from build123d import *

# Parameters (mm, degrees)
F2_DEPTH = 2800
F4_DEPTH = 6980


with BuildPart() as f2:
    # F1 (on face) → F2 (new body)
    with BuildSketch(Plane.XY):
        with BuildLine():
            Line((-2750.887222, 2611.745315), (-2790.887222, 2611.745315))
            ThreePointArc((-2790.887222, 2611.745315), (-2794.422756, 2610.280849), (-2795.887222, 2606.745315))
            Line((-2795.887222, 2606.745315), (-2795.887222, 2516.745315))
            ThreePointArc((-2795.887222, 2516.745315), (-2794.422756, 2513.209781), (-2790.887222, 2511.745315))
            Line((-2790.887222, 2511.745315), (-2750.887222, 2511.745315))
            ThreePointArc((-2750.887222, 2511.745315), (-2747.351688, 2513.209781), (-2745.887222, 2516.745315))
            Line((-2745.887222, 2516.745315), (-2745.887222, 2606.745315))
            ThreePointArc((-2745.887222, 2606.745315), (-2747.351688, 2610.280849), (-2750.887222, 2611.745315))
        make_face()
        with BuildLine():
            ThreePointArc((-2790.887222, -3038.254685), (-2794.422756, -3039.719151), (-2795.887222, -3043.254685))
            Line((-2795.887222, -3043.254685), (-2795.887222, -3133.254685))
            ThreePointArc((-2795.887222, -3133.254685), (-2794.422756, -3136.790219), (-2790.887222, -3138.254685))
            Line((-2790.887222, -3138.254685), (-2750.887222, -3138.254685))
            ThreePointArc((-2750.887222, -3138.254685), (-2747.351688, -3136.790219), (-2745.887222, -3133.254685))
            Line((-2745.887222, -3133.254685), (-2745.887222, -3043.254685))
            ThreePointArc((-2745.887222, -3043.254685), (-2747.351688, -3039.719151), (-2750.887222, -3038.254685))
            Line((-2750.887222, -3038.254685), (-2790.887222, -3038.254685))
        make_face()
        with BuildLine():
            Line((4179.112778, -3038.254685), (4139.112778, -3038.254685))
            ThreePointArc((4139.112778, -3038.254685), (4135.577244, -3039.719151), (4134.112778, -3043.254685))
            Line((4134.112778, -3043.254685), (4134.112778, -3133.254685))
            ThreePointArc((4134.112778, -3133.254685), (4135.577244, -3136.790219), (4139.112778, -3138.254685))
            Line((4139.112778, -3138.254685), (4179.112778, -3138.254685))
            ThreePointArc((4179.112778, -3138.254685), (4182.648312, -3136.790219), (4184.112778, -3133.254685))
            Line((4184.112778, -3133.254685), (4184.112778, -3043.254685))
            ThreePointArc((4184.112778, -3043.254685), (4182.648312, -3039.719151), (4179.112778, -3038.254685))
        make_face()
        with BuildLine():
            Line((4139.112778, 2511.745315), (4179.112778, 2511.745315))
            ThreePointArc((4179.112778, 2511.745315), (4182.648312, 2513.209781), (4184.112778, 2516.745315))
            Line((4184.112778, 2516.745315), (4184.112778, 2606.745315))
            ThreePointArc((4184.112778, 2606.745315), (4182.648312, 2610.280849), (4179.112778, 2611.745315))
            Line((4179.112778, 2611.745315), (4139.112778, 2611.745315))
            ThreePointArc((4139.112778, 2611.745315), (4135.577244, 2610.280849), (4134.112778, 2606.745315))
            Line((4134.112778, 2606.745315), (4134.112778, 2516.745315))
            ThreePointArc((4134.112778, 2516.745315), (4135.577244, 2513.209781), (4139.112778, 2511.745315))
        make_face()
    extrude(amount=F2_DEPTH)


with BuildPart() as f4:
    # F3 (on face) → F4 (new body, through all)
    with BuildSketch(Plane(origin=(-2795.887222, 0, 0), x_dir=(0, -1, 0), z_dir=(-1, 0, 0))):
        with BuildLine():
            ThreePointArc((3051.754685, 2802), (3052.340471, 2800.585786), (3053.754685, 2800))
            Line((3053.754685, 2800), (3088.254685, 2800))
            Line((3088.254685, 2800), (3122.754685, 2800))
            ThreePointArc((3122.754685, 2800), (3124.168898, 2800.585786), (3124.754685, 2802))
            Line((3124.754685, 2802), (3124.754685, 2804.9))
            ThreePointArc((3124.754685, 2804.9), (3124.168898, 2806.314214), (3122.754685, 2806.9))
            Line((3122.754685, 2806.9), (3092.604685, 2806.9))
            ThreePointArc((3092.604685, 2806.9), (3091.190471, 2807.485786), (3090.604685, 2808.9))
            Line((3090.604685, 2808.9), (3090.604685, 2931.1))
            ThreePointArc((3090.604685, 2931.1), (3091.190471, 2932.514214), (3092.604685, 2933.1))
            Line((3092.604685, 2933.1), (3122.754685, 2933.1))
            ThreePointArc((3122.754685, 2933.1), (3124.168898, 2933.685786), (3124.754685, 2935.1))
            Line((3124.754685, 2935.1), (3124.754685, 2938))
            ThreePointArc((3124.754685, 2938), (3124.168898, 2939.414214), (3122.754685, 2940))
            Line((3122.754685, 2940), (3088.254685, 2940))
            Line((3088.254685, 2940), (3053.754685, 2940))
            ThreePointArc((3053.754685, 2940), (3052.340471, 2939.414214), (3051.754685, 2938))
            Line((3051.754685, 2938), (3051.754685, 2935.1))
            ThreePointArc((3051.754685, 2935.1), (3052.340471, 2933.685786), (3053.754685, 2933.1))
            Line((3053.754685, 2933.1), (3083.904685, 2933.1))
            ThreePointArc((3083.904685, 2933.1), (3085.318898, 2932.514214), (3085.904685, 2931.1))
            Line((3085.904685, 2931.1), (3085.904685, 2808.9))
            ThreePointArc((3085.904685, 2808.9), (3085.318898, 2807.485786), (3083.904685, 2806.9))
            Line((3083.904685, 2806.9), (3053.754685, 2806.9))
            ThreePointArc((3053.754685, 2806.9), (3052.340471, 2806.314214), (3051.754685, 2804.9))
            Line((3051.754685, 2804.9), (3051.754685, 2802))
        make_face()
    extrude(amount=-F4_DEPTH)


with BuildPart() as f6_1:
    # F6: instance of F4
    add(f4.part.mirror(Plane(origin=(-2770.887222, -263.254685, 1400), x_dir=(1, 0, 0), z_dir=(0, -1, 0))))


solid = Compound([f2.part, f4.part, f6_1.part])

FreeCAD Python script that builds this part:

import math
import FreeCAD as App
import Part
import Sketcher
Q = App.Units.Quantity

doc = App.newDocument("Part")
body = doc.addObject("PartDesign::Body", "Body")
body.AllowCompound = True

# Sketch on XY plane
sketch1 = doc.addObject("Sketcher::SketchObject", "Sketch")
body.addObject(sketch1)
sketch1.AttachmentSupport = (doc.XY_Plane, [""])
sketch1.MapMode = "FlatFace"
sketch1.addGeometry(Part.LineSegment(App.Vector(-2750.9, 2611.7, 0), App.Vector(-2790.9, 2611.7, 0)), False)
sketch1.addGeometry(Part.ArcOfCircle(Part.Circle(App.Vector(-2790.9, 2606.7, 0), App.Vector(0, 0, 1), 5), math.radians(90), math.radians(180)), False)
sketch1.addGeometry(Part.LineSegment(App.Vector(-2795.9, 2606.7, 0), App.Vector(-2795.9, 2516.7, 0)), False)
sketch1.addGeometry(Part.ArcOfCircle(Part.Circle(App.Vector(-2790.9, 2516.7, 0), App.Vector(0, 0, 1), 5), math.radians(180), math.radians(270)), False)
sketch1.addGeometry(Part.LineSegment(App.Vector(-2790.9, 2511.7, 0), App.Vector(-2750.9, 2511.7, 0)), False)
sketch1.addGeometry(Part.ArcOfCircle(Part.Circle(App.Vector(-2750.9, 2516.7, 0), App.Vector(0, 0, 1), 5), math.radians(-90), math.radians(0)), False)
sketch1.addGeometry(Part.LineSegment(App.Vector(-2745.9, 2516.7, 0), App.Vector(-2745.9, 2606.7, 0)), False)
sketch1.addGeometry(Part.ArcOfCircle(Part.Circle(App.Vector(-2750.9, 2606.7, 0), App.Vector(0, 0, 1), 5), math.radians(0), math.radians(90)), False)
sketch1.addGeometry(Part.ArcOfCircle(Part.Circle(App.Vector(-2790.9, -3043.3, 0), App.Vector(0, 0, 1), 5), math.radians(90), math.radians(180)), False)
sketch1.addGeometry(Part.LineSegment(App.Vector(-2795.9, -3043.3, 0), App.Vector(-2795.9, -3133.3, 0)), False)
sketch1.addGeometry(Part.ArcOfCircle(Part.Circle(App.Vector(-2790.9, -3133.3, 0), App.Vector(0, 0, 1), 5), math.radians(180), math.radians(270)), False)
sketch1.addGeometry(Part.LineSegment(App.Vector(-2790.9, -3138.3, 0), App.Vector(-2750.9, -3138.3, 0)), False)
sketch1.addGeometry(Part.ArcOfCircle(Part.Circle(App.Vector(-2750.9, -3133.3, 0), App.Vector(0, 0, 1), 5), math.radians(-90), math.radians(0)), False)
sketch1.addGeometry(Part.LineSegment(App.Vector(-2745.9, -3133.3, 0), App.Vector(-2745.9, -3043.3, 0)), False)
sketch1.addGeometry(Part.ArcOfCircle(Part.Circle(App.Vector(-2750.9, -3043.3, 0), App.Vector(0, 0, 1), 5), math.radians(0), math.radians(90)), False)
sketch1.addGeometry(Part.LineSegment(App.Vector(-2750.9, -3038.3, 0), App.Vector(-2790.9, -3038.3, 0)), False)
sketch1.addGeometry(Part.LineSegment(App.Vector(4179.1, -3038.3, 0), App.Vector(4139.1, -3038.3, 0)), False)
sketch1.addGeometry(Part.ArcOfCircle(Part.Circle(App.Vector(4139.1, -3043.3, 0), App.Vector(0, 0, 1), 5), math.radians(90), math.radians(180)), False)
sketch1.addGeometry(Part.LineSegment(App.Vector(4134.1, -3043.3, 0), App.Vector(4134.1, -3133.3, 0)), False)
sketch1.addGeometry(Part.ArcOfCircle(Part.Circle(App.Vector(4139.1, -3133.3, 0), App.Vector(0, 0, 1), 5), math.radians(180), math.radians(270)), False)
sketch1.addGeometry(Part.LineSegment(App.Vector(4139.1, -3138.3, 0), App.Vector(4179.1, -3138.3, 0)), False)
sketch1.addGeometry(Part.ArcOfCircle(Part.Circle(App.Vector(4179.1, -3133.3, 0), App.Vector(0, 0, 1), 5), math.radians(-90), math.radians(0)), False)
sketch1.addGeometry(Part.LineSegment(App.Vector(4184.1, -3133.3, 0), App.Vector(4184.1, -3043.3, 0)), False)
sketch1.addGeometry(Part.ArcOfCircle(Part.Circle(App.Vector(4179.1, -3043.3, 0), App.Vector(0, 0, 1), 5), math.radians(0), math.radians(90)), False)
sketch1.addGeometry(Part.LineSegment(App.Vector(4139.1, 2511.7, 0), App.Vector(4179.1, 2511.7, 0)), False)
sketch1.addGeometry(Part.ArcOfCircle(Part.Circle(App.Vector(4179.1, 2516.7, 0), App.Vector(0, 0, 1), 5), math.radians(-90), math.radians(0)), False)
sketch1.addGeometry(Part.LineSegment(App.Vector(4184.1, 2516.7, 0), App.Vector(4184.1, 2606.7, 0)), False)
sketch1.addGeometry(Part.ArcOfCircle(Part.Circle(App.Vector(4179.1, 2606.7, 0), App.Vector(0, 0, 1), 5), math.radians(0), math.radians(90)), False)
sketch1.addGeometry(Part.LineSegment(App.Vector(4179.1, 2611.7, 0), App.Vector(4139.1, 2611.7, 0)), False)
sketch1.addGeometry(Part.ArcOfCircle(Part.Circle(App.Vector(4139.1, 2606.7, 0), App.Vector(0, 0, 1), 5), math.radians(90), math.radians(180)), False)
sketch1.addGeometry(Part.LineSegment(App.Vector(4134.1, 2606.7, 0), App.Vector(4134.1, 2516.7, 0)), False)
sketch1.addGeometry(Part.ArcOfCircle(Part.Circle(App.Vector(4139.1, 2516.7, 0), App.Vector(0, 0, 1), 5), math.radians(180), math.radians(270)), False)
sketch1.addConstraint(Sketcher.Constraint("Tangent", 0, 2, 1, 1))
sketch1.addConstraint(Sketcher.Constraint("Tangent", 1, 2, 2, 1))
sketch1.addConstraint(Sketcher.Constraint("Tangent", 2, 2, 3, 1))
sketch1.addConstraint(Sketcher.Constraint("Tangent", 3, 2, 4, 1))
sketch1.addConstraint(Sketcher.Constraint("Tangent", 4, 2, 5, 1))
sketch1.addConstraint(Sketcher.Constraint("Tangent", 5, 2, 6, 1))
sketch1.addConstraint(Sketcher.Constraint("Tangent", 6, 2, 7, 1))
sketch1.addConstraint(Sketcher.Constraint("Tangent", 7, 2, 0, 1))
sketch1.addConstraint(Sketcher.Constraint("Tangent", 8, 2, 9, 1))
sketch1.addConstraint(Sketcher.Constraint("Tangent", 9, 2, 10, 1))
sketch1.addConstraint(Sketcher.Constraint("Tangent", 10, 2, 11, 1))
sketch1.addConstraint(Sketcher.Constraint("Tangent", 11, 2, 12, 1))
sketch1.addConstraint(Sketcher.Constraint("Tangent", 12, 2, 13, 1))
sketch1.addConstraint(Sketcher.Constraint("Tangent", 13, 2, 14, 1))
sketch1.addConstraint(Sketcher.Constraint("Tangent", 14, 2, 15, 1))
sketch1.addConstraint(Sketcher.Constraint("Tangent", 15, 2, 8, 1))
sketch1.addConstraint(Sketcher.Constraint("Tangent", 16, 2, 17, 1))
sketch1.addConstraint(Sketcher.Constraint("Tangent", 17, 2, 18, 1))
sketch1.addConstraint(Sketcher.Constraint("Tangent", 18, 2, 19, 1))
sketch1.addConstraint(Sketcher.Constraint("Tangent", 19, 2, 20, 1))
sketch1.addConstraint(Sketcher.Constraint("Tangent", 20, 2, 21, 1))
sketch1.addConstraint(Sketcher.Constraint("Tangent", 21, 2, 22, 1))
sketch1.addConstraint(Sketcher.Constraint("Tangent", 22, 2, 23, 1))
sketch1.addConstraint(Sketcher.Constraint("Tangent", 23, 2, 16, 1))
sketch1.addConstraint(Sketcher.Constraint("Tangent", 24, 2, 25, 1))
sketch1.addConstraint(Sketcher.Constraint("Tangent", 25, 2, 26, 1))
sketch1.addConstraint(Sketcher.Constraint("Tangent", 26, 2, 27, 1))
sketch1.addConstraint(Sketcher.Constraint("Tangent", 27, 2, 28, 1))
sketch1.addConstraint(Sketcher.Constraint("Tangent", 28, 2, 29, 1))
sketch1.addConstraint(Sketcher.Constraint("Tangent", 29, 2, 30, 1))
sketch1.addConstraint(Sketcher.Constraint("Tangent", 30, 2, 31, 1))
sketch1.addConstraint(Sketcher.Constraint("Tangent", 31, 2, 24, 1))
sketch1.addConstraint(Sketcher.Constraint("Horizontal", 0))
sketch1.addConstraint(Sketcher.Constraint("Vertical", 2))
sketch1.addConstraint(Sketcher.Constraint("Horizontal", 4))
sketch1.addConstraint(Sketcher.Constraint("Vertical", 6))
sketch1.addConstraint(Sketcher.Constraint("Vertical", 9))
sketch1.addConstraint(Sketcher.Constraint("Horizontal", 11))
sketch1.addConstraint(Sketcher.Constraint("Vertical", 13))
sketch1.addConstraint(Sketcher.Constraint("Horizontal", 15))
sketch1.addConstraint(Sketcher.Constraint("Horizontal", 16))
sketch1.addConstraint(Sketcher.Constraint("Vertical", 18))
sketch1.addConstraint(Sketcher.Constraint("Horizontal", 20))
sketch1.addConstraint(Sketcher.Constraint("Vertical", 22))
sketch1.addConstraint(Sketcher.Constraint("Horizontal", 24))
sketch1.addConstraint(Sketcher.Constraint("Vertical", 26))
sketch1.addConstraint(Sketcher.Constraint("Horizontal", 28))
sketch1.addConstraint(Sketcher.Constraint("Vertical", 30))
sketch1.addConstraint(Sketcher.Constraint("Equal", 1, 3))
sketch1.addConstraint(Sketcher.Constraint("Equal", 3, 5))
sketch1.addConstraint(Sketcher.Constraint("Equal", 5, 7))
sketch1.addConstraint(Sketcher.Constraint("Equal", 7, 8))
sketch1.addConstraint(Sketcher.Constraint("Equal", 8, 10))
sketch1.addConstraint(Sketcher.Constraint("Equal", 10, 12))
sketch1.addConstraint(Sketcher.Constraint("Equal", 12, 14))
sketch1.addConstraint(Sketcher.Constraint("Equal", 14, 17))
sketch1.addConstraint(Sketcher.Constraint("Equal", 17, 19))
sketch1.addConstraint(Sketcher.Constraint("Equal", 19, 21))
sketch1.addConstraint(Sketcher.Constraint("Equal", 21, 23))
sketch1.addConstraint(Sketcher.Constraint("Equal", 23, 25))
sketch1.addConstraint(Sketcher.Constraint("Equal", 25, 27))
sketch1.addConstraint(Sketcher.Constraint("Equal", 27, 29))
sketch1.addConstraint(Sketcher.Constraint("Equal", 29, 31))
sketch1.addConstraint(Sketcher.Constraint("Horizontal", 14, 3, 17, 3))
sketch1.addConstraint(Sketcher.Constraint("Horizontal", 12, 3, 19, 3))
sketch1.addConstraint(Sketcher.Constraint("Horizontal", 5, 3, 25, 3))
sketch1.addConstraint(Sketcher.Constraint("Horizontal", 7, 3, 27, 3))
sketch1.addConstraint(Sketcher.Constraint("Vertical", 3, 3, 8, 3))
sketch1.addConstraint(Sketcher.Constraint("Vertical", 7, 3, 12, 3))
sketch1.addConstraint(Sketcher.Constraint("Vertical", 23, 3, 25, 3))
sketch1.addConstraint(Sketcher.Constraint("Vertical", 19, 3, 29, 3))
sketch1.addConstraint(Sketcher.Constraint("Equal", 15, 16))
sketch1.addConstraint(Sketcher.Constraint("Equal", 6, 9))
sketch1.addConstraint(Sketcher.Constraint("Radius", 1, Q("5 mm")))
sketch1.addConstraint(Sketcher.Constraint("DistanceX", 0, 2, 0, 1, Q("40 mm")))
sketch1.addConstraint(Sketcher.Constraint("DistanceY", 2, 2, 2, 1, Q("90 mm")))
sketch1.addConstraint(Sketcher.Constraint("DistanceY", 8, 3, 3, 3, Q("5559.999999 mm")))
sketch1.addConstraint(Sketcher.Constraint("DistanceX", 14, 3, 17, 3, Q("6889.999999 mm")))
sketch1.addConstraint(Sketcher.Constraint("DistanceX", 5, 3, -1, 1, Q("2750.887222 mm")))
sketch1.addConstraint(Sketcher.Constraint("DistanceY", -1, 1, 1, 3, Q("2606.745315 mm")))
pad1 = doc.addObject("PartDesign::Pad", "Pad")
body.addObject(pad1)
pad1.Profile = sketch1
pad1.Length = 2800
body2 = doc.addObject("PartDesign::Body", "Body001")

# Sketch on YZ plane
sketch2 = doc.addObject("Sketcher::SketchObject", "Sketch001")
body2.addObject(sketch2)
sketch2.AttachmentSupport = (doc.getObject("YZ_Plane001"), [""])
sketch2.MapMode = "FlatFace"
sketch2.AttachmentOffset = App.Placement(App.Vector(0, 0, -2795.887222), App.Rotation())
sketch2.addGeometry(Part.ArcOfCircle(Part.Circle(App.Vector(-3053.8, 2802, 0), App.Vector(0, 0, 1), 2), math.radians(-90), math.radians(0)), False)
sketch2.addGeometry(Part.LineSegment(App.Vector(-3053.8, 2800, 0), App.Vector(-3122.8, 2800, 0)), False)
sketch2.addGeometry(Part.ArcOfCircle(Part.Circle(App.Vector(-3122.8, 2802, 0), App.Vector(0, 0, 1), 2), math.radians(-180), math.radians(-90)), False)
sketch2.addGeometry(Part.LineSegment(App.Vector(-3124.8, 2802, 0), App.Vector(-3124.8, 2804.9, 0)), False)
sketch2.addGeometry(Part.ArcOfCircle(Part.Circle(App.Vector(-3122.8, 2804.9, 0), App.Vector(0, 0, 1), 2), math.radians(90), math.radians(180)), False)
sketch2.addGeometry(Part.LineSegment(App.Vector(-3122.8, 2806.9, 0), App.Vector(-3092.6, 2806.9, 0)), False)
sketch2.addGeometry(Part.ArcOfCircle(Part.Circle(App.Vector(-3092.6, 2808.9, 0), App.Vector(0, 0, 1), 2), math.radians(-90), math.radians(0)), False)
sketch2.addGeometry(Part.LineSegment(App.Vector(-3090.6, 2808.9, 0), App.Vector(-3090.6, 2931.1, 0)), False)
sketch2.addGeometry(Part.ArcOfCircle(Part.Circle(App.Vector(-3092.6, 2931.1, 0), App.Vector(0, 0, 1), 2), math.radians(0), math.radians(90)), False)
sketch2.addGeometry(Part.LineSegment(App.Vector(-3092.6, 2933.1, 0), App.Vector(-3122.8, 2933.1, 0)), False)
sketch2.addGeometry(Part.ArcOfCircle(Part.Circle(App.Vector(-3122.8, 2935.1, 0), App.Vector(0, 0, 1), 2), math.radians(-180), math.radians(-90)), False)
sketch2.addGeometry(Part.LineSegment(App.Vector(-3124.8, 2935.1, 0), App.Vector(-3124.8, 2938, 0)), False)
sketch2.addGeometry(Part.ArcOfCircle(Part.Circle(App.Vector(-3122.8, 2938, 0), App.Vector(0, 0, 1), 2), math.radians(90), math.radians(180)), False)
sketch2.addGeometry(Part.LineSegment(App.Vector(-3122.8, 2940, 0), App.Vector(-3053.8, 2940, 0)), False)
sketch2.addGeometry(Part.ArcOfCircle(Part.Circle(App.Vector(-3053.8, 2938, 0), App.Vector(0, 0, 1), 2), math.radians(0), math.radians(90)), False)
sketch2.addGeometry(Part.LineSegment(App.Vector(-3051.8, 2938, 0), App.Vector(-3051.8, 2935.1, 0)), False)
sketch2.addGeometry(Part.ArcOfCircle(Part.Circle(App.Vector(-3053.8, 2935.1, 0), App.Vector(0, 0, 1), 2), math.radians(-90), math.radians(0)), False)
sketch2.addGeometry(Part.LineSegment(App.Vector(-3053.8, 2933.1, 0), App.Vector(-3083.9, 2933.1, 0)), False)
sketch2.addGeometry(Part.ArcOfCircle(Part.Circle(App.Vector(-3083.9, 2931.1, 0), App.Vector(0, 0, 1), 2), math.radians(90), math.radians(180)), False)
sketch2.addGeometry(Part.LineSegment(App.Vector(-3085.9, 2931.1, 0), App.Vector(-3085.9, 2808.9, 0)), False)
sketch2.addGeometry(Part.ArcOfCircle(Part.Circle(App.Vector(-3083.9, 2808.9, 0), App.Vector(0, 0, 1), 2), math.radians(-180), math.radians(-90)), False)
sketch2.addGeometry(Part.LineSegment(App.Vector(-3083.9, 2806.9, 0), App.Vector(-3053.8, 2806.9, 0)), False)
sketch2.addGeometry(Part.ArcOfCircle(Part.Circle(App.Vector(-3053.8, 2804.9, 0), App.Vector(0, 0, 1), 2), math.radians(0), math.radians(90)), False)
sketch2.addGeometry(Part.LineSegment(App.Vector(-3051.8, 2804.9, 0), App.Vector(-3051.8, 2802, 0)), False)
sketch2.addConstraint(Sketcher.Constraint("Tangent", 0, 1, 1, 1))
sketch2.addConstraint(Sketcher.Constraint("Tangent", 1, 2, 2, 2))
sketch2.addConstraint(Sketcher.Constraint("Tangent", 2, 1, 3, 1))
sketch2.addConstraint(Sketcher.Constraint("Tangent", 3, 2, 4, 2))
sketch2.addConstraint(Sketcher.Constraint("Tangent", 4, 1, 5, 1))
sketch2.addConstraint(Sketcher.Constraint("Tangent", 5, 2, 6, 1))
sketch2.addConstraint(Sketcher.Constraint("Tangent", 6, 2, 7, 1))
sketch2.addConstraint(Sketcher.Constraint("Tangent", 7, 2, 8, 1))
sketch2.addConstraint(Sketcher.Constraint("Tangent", 8, 2, 9, 1))
sketch2.addConstraint(Sketcher.Constraint("Tangent", 9, 2, 10, 2))
sketch2.addConstraint(Sketcher.Constraint("Tangent", 10, 1, 11, 1))
sketch2.addConstraint(Sketcher.Constraint("Tangent", 11, 2, 12, 2))
sketch2.addConstraint(Sketcher.Constraint("Tangent", 12, 1, 13, 1))
sketch2.addConstraint(Sketcher.Constraint("Tangent", 13, 2, 14, 2))
sketch2.addConstraint(Sketcher.Constraint("Tangent", 14, 1, 15, 1))
sketch2.addConstraint(Sketcher.Constraint("Tangent", 15, 2, 16, 2))
sketch2.addConstraint(Sketcher.Constraint("Tangent", 16, 1, 17, 1))
sketch2.addConstraint(Sketcher.Constraint("Tangent", 17, 2, 18, 1))
sketch2.addConstraint(Sketcher.Constraint("Tangent", 18, 2, 19, 1))
sketch2.addConstraint(Sketcher.Constraint("Tangent", 19, 2, 20, 1))
sketch2.addConstraint(Sketcher.Constraint("Tangent", 20, 2, 21, 1))
sketch2.addConstraint(Sketcher.Constraint("Tangent", 21, 2, 22, 2))
sketch2.addConstraint(Sketcher.Constraint("Tangent", 22, 1, 23, 1))
sketch2.addConstraint(Sketcher.Constraint("Tangent", 23, 2, 0, 2))
sketch2.addConstraint(Sketcher.Constraint("Horizontal", 1))
sketch2.addConstraint(Sketcher.Constraint("Vertical", 3))
sketch2.addConstraint(Sketcher.Constraint("Horizontal", 5))
sketch2.addConstraint(Sketcher.Constraint("Vertical", 7))
sketch2.addConstraint(Sketcher.Constraint("Horizontal", 9))
sketch2.addConstraint(Sketcher.Constraint("Vertical", 11))
sketch2.addConstraint(Sketcher.Constraint("Horizontal", 13))
sketch2.addConstraint(Sketcher.Constraint("Vertical", 15))
sketch2.addConstraint(Sketcher.Constraint("Horizontal", 17))
sketch2.addConstraint(Sketcher.Constraint("Vertical", 19))
sketch2.addConstraint(Sketcher.Constraint("Horizontal", 21))
sketch2.addConstraint(Sketcher.Constraint("Vertical", 23))
sketch2.addConstraint(Sketcher.Constraint("Equal", 0, 2))
sketch2.addConstraint(Sketcher.Constraint("Equal", 2, 4))
sketch2.addConstraint(Sketcher.Constraint("Equal", 4, 6))
sketch2.addConstraint(Sketcher.Constraint("Equal", 6, 8))
sketch2.addConstraint(Sketcher.Constraint("Equal", 8, 10))
sketch2.addConstraint(Sketcher.Constraint("Equal", 10, 12))
sketch2.addConstraint(Sketcher.Constraint("Equal", 12, 14))
sketch2.addConstraint(Sketcher.Constraint("Equal", 14, 16))
sketch2.addConstraint(Sketcher.Constraint("Equal", 16, 18))
sketch2.addConstraint(Sketcher.Constraint("Equal", 18, 20))
sketch2.addConstraint(Sketcher.Constraint("Equal", 20, 22))
sketch2.addConstraint(Sketcher.Constraint("Horizontal", 10, 3, 16, 3))
sketch2.addConstraint(Sketcher.Constraint("Horizontal", 6, 3, 20, 3))
sketch2.addConstraint(Sketcher.Constraint("Vertical", 4, 3, 10, 3))
sketch2.addConstraint(Sketcher.Constraint("Vertical", 0, 3, 14, 3))
sketch2.addConstraint(Sketcher.Constraint("Equal", 9, 17))
sketch2.addConstraint(Sketcher.Constraint("Equal", 3, 11))
sketch2.addConstraint(Sketcher.Constraint("Radius", 0, Q("1.999999 mm")))
sketch2.addConstraint(Sketcher.Constraint("DistanceX", 1, 2, 1, 1, Q("69 mm")))
sketch2.addConstraint(Sketcher.Constraint("DistanceY", 3, 1, 3, 2, Q("2.9 mm")))
sketch2.addConstraint(Sketcher.Constraint("DistanceY", 7, 1, 7, 2, Q("122.2 mm")))
sketch2.addConstraint(Sketcher.Constraint("DistanceY", -1, 1, 0, 3, Q("2801.999999 mm")))
sketch2.addConstraint(Sketcher.Constraint("DistanceX", 5, 1, 5, 2, Q("30.15 mm")))
sketch2.addConstraint(Sketcher.Constraint("DistanceX", 0, 3, -1, 1, Q("3053.754684 mm")))
pad2 = doc.addObject("PartDesign::Pad", "Pad001")
body2.addObject(pad2)
pad2.Profile = sketch2
pad2.Length = 6980
body3 = doc.addObject("PartDesign::Body", "Body002")
doc.recompute()

mirroring = doc.addObject("Part::Mirroring", "Mirroring")
mirroring.Source = body2
mirroring.Base = App.Vector(-2770.887222, -263.254685, 1400)
mirroring.Normal = App.Vector(0, -1, 0)
body3.BaseFeature = mirroring
doc.recompute()
mirroring.Visibility = False

doc.recompute()
